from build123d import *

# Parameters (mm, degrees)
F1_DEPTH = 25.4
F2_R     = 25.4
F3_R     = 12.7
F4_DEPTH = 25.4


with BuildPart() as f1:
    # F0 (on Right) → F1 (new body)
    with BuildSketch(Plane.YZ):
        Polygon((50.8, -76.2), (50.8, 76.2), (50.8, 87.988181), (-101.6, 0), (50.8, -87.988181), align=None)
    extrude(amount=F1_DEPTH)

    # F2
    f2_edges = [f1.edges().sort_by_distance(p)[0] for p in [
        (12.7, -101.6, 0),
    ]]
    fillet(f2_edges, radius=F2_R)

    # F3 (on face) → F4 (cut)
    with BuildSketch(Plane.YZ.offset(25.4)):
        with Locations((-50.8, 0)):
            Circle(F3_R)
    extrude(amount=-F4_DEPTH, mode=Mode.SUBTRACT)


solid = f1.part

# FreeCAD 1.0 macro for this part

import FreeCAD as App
import Part
import Sketcher
Q = App.Units.Quantity


def edges_at(feature, points):
    """Names of the edges that pass closest to the given points."""
    edges = feature.Shape.Edges
    near = lambda p: min(range(len(edges)), key=lambda i: edges[i].distToShape(Part.Vertex(*p))[0])
    return sorted({f"Edge{near(p) + 1}" for p in points})


def add_polygon(sketch, points):
    """Adds a closed chain of lines whose ends are joined by coincident constraints."""
    first, n = sketch.GeometryCount, len(points)
    for a, b in zip(points, points[1:] + points[:1]):
        sketch.addGeometry(Part.LineSegment(App.Vector(*a, 0), App.Vector(*b, 0)), False)
    for i in range(n):
        sketch.addConstraint(Sketcher.Constraint("Coincident", first + i, 2, first + (i + 1) % n, 1))

doc = App.newDocument("Part")
body = doc.addObject("PartDesign::Body", "Body")

sketch1 = body.newObject("Sketcher::SketchObject", "Sketch")
sketch1.AttachmentSupport = (doc.getObject("YZ_Plane"), [""])
sketch1.MapMode = "FlatFace"
add_polygon(sketch1, [(51, 88), (-102, 0), (51, -88)])
sketch1.addConstraint([
    Sketcher.Constraint("Vertical", 2),
    Sketcher.Constraint("PointOnObject", 0, 2, -1),
    Sketcher.Constraint("Equal", 0, 1),
    Sketcher.Constraint("DistanceX", 0, 2, -1, 1, Q("4 in")),
    Sketcher.Constraint("DistanceX", -1, 1, 1, 2, Q("2 in")),
    Sketcher.Constraint("Angle", 0, Q("-150 deg")),
])
pad1 = body.newObject("PartDesign::Pad", "Pad")
pad1.Profile = sketch1
pad1.Length = Q("1 in")
doc.recompute()

fillet = body.newObject("PartDesign::Fillet", "Fillet")
fillet.Base = (pad1, edges_at(pad1, [(12.7, -101.6, 0)]))
fillet.Radius = Q("1 in")

sketch2 = body.newObject("Sketcher::SketchObject", "Sketch001")
sketch2.AttachmentSupport = (doc.getObject("YZ_Plane"), [""])
sketch2.MapMode = "FlatFace"
sketch2.AttachmentOffset = App.Placement(App.Vector(0, 0, 1 * 25.4), App.Rotation())
sketch2.addGeometry(Part.Circle(App.Vector(-51, 0, 0), App.Vector(0, 0, 1), 13), False)
sketch2.addConstraint([
    Sketcher.Constraint("PointOnObject", 0, 3, -1),
    Sketcher.Constraint("Diameter", 0, Q("1 in")),
    Sketcher.Constraint("DistanceX", 0, 3, -1, 1, Q("2 in")),
])
pocket1 = body.newObject("PartDesign::Pocket", "Pocket")
pocket1.Profile = sketch2
pocket1.Length = Q("1 in")

doc.recompute()
